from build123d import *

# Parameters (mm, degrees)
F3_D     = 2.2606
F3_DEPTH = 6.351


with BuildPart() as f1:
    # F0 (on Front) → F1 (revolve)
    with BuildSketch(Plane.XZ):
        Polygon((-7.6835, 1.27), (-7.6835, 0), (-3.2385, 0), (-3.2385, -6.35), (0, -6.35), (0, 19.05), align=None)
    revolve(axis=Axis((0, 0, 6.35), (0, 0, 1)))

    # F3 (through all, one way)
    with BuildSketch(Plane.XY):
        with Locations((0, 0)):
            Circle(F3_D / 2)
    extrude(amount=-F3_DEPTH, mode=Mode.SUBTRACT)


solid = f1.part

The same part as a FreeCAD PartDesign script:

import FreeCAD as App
import Part
import Sketcher
Q = App.Units.Quantity


def add_polygon(sketch, points):
    """Adds a closed chain of lines whose ends are joined by coincident constraints."""
    first, n = sketch.GeometryCount, len(points)
    for a, b in zip(points, points[1:] + points[:1]):
        sketch.addGeometry(Part.LineSegment(App.Vector(*a, 0), App.Vector(*b, 0)), False)
    for i in range(n):
        sketch.addConstraint(Sketcher.Constraint("Coincident", first + i, 2, first + (i + 1) % n, 1))

doc = App.newDocument("Part")
body = doc.addObject("PartDesign::Body", "Body")

# Sketch on XZ plane
sketch1 = body.newObject("Sketcher::SketchObject", "Sketch")
sketch1.AttachmentSupport = (doc.getObject("XZ_Plane"), [""])
sketch1.MapMode = "FlatFace"
add_polygon(sketch1, [(-7.6835, 1.27), (-7.6835, 0), (-3.2385, 0), (-3.2385, -6.35), (0, -6.35), (0, 19.05)])  # lines 0-5
sketch1.addConstraint(Sketcher.Constraint("Vertical", 0))
sketch1.addConstraint(Sketcher.Constraint("Horizontal", 1))
sketch1.addConstraint(Sketcher.Constraint("Vertical", 2))
sketch1.addConstraint(Sketcher.Constraint("Horizontal", 3))
sketch1.addConstraint(Sketcher.Constraint("Vertical", 4))
sketch1.addConstraint(Sketcher.Constraint("PointOnObject", 0, 2, -1))
sketch1.addConstraint(Sketcher.Constraint("PointOnObject", 3, 2, -2))
sketch1.addConstraint(Sketcher.Constraint("DistanceY", 4, 1, 4, 2, Q("1 in")))
sketch1.addConstraint(Sketcher.Constraint("DistanceY", 0, 2, 0, 1, Q("0.05 in")))
sketch1.addConstraint(Sketcher.Constraint("DistanceY", 2, 2, 2, 1, Q("0.25 in")))
sketch1.addConstraint(Sketcher.Constraint("DistanceX", 1, 1, 1, 2, Q("0.175 in")))
sketch1.addConstraint(Sketcher.Constraint("DistanceX", 3, 1, 3, 2, Q("0.1275 in")))
revolution = body.newObject("PartDesign::Revolution", "Revolution")
revolution.Profile = sketch1
revolution.ReferenceAxis = (sketch1, ["V_Axis"])
revolution.Angle = 360

# Sketch on XY plane
sketch2 = body.newObject("Sketcher::SketchObject", "Sketch001")
sketch2.AttachmentSupport = (doc.getObject("XY_Plane"), [""])
sketch2.MapMode = "FlatFace"
sketch2.addGeometry(Part.Circle(App.Vector(0, 0, 0), App.Vector(0, 0, 1), 1.1303), False)
sketch2.addConstraint(Sketcher.Constraint("Coincident", 0, 3, -1, 1))
sketch2.addConstraint(Sketcher.Constraint("Diameter", 0, Q("0.089 in")))
pocket1 = body.newObject("PartDesign::Pocket", "Pocket")
pocket1.Profile = sketch2
pocket1.Type = "ThroughAll"

doc.recompute()
